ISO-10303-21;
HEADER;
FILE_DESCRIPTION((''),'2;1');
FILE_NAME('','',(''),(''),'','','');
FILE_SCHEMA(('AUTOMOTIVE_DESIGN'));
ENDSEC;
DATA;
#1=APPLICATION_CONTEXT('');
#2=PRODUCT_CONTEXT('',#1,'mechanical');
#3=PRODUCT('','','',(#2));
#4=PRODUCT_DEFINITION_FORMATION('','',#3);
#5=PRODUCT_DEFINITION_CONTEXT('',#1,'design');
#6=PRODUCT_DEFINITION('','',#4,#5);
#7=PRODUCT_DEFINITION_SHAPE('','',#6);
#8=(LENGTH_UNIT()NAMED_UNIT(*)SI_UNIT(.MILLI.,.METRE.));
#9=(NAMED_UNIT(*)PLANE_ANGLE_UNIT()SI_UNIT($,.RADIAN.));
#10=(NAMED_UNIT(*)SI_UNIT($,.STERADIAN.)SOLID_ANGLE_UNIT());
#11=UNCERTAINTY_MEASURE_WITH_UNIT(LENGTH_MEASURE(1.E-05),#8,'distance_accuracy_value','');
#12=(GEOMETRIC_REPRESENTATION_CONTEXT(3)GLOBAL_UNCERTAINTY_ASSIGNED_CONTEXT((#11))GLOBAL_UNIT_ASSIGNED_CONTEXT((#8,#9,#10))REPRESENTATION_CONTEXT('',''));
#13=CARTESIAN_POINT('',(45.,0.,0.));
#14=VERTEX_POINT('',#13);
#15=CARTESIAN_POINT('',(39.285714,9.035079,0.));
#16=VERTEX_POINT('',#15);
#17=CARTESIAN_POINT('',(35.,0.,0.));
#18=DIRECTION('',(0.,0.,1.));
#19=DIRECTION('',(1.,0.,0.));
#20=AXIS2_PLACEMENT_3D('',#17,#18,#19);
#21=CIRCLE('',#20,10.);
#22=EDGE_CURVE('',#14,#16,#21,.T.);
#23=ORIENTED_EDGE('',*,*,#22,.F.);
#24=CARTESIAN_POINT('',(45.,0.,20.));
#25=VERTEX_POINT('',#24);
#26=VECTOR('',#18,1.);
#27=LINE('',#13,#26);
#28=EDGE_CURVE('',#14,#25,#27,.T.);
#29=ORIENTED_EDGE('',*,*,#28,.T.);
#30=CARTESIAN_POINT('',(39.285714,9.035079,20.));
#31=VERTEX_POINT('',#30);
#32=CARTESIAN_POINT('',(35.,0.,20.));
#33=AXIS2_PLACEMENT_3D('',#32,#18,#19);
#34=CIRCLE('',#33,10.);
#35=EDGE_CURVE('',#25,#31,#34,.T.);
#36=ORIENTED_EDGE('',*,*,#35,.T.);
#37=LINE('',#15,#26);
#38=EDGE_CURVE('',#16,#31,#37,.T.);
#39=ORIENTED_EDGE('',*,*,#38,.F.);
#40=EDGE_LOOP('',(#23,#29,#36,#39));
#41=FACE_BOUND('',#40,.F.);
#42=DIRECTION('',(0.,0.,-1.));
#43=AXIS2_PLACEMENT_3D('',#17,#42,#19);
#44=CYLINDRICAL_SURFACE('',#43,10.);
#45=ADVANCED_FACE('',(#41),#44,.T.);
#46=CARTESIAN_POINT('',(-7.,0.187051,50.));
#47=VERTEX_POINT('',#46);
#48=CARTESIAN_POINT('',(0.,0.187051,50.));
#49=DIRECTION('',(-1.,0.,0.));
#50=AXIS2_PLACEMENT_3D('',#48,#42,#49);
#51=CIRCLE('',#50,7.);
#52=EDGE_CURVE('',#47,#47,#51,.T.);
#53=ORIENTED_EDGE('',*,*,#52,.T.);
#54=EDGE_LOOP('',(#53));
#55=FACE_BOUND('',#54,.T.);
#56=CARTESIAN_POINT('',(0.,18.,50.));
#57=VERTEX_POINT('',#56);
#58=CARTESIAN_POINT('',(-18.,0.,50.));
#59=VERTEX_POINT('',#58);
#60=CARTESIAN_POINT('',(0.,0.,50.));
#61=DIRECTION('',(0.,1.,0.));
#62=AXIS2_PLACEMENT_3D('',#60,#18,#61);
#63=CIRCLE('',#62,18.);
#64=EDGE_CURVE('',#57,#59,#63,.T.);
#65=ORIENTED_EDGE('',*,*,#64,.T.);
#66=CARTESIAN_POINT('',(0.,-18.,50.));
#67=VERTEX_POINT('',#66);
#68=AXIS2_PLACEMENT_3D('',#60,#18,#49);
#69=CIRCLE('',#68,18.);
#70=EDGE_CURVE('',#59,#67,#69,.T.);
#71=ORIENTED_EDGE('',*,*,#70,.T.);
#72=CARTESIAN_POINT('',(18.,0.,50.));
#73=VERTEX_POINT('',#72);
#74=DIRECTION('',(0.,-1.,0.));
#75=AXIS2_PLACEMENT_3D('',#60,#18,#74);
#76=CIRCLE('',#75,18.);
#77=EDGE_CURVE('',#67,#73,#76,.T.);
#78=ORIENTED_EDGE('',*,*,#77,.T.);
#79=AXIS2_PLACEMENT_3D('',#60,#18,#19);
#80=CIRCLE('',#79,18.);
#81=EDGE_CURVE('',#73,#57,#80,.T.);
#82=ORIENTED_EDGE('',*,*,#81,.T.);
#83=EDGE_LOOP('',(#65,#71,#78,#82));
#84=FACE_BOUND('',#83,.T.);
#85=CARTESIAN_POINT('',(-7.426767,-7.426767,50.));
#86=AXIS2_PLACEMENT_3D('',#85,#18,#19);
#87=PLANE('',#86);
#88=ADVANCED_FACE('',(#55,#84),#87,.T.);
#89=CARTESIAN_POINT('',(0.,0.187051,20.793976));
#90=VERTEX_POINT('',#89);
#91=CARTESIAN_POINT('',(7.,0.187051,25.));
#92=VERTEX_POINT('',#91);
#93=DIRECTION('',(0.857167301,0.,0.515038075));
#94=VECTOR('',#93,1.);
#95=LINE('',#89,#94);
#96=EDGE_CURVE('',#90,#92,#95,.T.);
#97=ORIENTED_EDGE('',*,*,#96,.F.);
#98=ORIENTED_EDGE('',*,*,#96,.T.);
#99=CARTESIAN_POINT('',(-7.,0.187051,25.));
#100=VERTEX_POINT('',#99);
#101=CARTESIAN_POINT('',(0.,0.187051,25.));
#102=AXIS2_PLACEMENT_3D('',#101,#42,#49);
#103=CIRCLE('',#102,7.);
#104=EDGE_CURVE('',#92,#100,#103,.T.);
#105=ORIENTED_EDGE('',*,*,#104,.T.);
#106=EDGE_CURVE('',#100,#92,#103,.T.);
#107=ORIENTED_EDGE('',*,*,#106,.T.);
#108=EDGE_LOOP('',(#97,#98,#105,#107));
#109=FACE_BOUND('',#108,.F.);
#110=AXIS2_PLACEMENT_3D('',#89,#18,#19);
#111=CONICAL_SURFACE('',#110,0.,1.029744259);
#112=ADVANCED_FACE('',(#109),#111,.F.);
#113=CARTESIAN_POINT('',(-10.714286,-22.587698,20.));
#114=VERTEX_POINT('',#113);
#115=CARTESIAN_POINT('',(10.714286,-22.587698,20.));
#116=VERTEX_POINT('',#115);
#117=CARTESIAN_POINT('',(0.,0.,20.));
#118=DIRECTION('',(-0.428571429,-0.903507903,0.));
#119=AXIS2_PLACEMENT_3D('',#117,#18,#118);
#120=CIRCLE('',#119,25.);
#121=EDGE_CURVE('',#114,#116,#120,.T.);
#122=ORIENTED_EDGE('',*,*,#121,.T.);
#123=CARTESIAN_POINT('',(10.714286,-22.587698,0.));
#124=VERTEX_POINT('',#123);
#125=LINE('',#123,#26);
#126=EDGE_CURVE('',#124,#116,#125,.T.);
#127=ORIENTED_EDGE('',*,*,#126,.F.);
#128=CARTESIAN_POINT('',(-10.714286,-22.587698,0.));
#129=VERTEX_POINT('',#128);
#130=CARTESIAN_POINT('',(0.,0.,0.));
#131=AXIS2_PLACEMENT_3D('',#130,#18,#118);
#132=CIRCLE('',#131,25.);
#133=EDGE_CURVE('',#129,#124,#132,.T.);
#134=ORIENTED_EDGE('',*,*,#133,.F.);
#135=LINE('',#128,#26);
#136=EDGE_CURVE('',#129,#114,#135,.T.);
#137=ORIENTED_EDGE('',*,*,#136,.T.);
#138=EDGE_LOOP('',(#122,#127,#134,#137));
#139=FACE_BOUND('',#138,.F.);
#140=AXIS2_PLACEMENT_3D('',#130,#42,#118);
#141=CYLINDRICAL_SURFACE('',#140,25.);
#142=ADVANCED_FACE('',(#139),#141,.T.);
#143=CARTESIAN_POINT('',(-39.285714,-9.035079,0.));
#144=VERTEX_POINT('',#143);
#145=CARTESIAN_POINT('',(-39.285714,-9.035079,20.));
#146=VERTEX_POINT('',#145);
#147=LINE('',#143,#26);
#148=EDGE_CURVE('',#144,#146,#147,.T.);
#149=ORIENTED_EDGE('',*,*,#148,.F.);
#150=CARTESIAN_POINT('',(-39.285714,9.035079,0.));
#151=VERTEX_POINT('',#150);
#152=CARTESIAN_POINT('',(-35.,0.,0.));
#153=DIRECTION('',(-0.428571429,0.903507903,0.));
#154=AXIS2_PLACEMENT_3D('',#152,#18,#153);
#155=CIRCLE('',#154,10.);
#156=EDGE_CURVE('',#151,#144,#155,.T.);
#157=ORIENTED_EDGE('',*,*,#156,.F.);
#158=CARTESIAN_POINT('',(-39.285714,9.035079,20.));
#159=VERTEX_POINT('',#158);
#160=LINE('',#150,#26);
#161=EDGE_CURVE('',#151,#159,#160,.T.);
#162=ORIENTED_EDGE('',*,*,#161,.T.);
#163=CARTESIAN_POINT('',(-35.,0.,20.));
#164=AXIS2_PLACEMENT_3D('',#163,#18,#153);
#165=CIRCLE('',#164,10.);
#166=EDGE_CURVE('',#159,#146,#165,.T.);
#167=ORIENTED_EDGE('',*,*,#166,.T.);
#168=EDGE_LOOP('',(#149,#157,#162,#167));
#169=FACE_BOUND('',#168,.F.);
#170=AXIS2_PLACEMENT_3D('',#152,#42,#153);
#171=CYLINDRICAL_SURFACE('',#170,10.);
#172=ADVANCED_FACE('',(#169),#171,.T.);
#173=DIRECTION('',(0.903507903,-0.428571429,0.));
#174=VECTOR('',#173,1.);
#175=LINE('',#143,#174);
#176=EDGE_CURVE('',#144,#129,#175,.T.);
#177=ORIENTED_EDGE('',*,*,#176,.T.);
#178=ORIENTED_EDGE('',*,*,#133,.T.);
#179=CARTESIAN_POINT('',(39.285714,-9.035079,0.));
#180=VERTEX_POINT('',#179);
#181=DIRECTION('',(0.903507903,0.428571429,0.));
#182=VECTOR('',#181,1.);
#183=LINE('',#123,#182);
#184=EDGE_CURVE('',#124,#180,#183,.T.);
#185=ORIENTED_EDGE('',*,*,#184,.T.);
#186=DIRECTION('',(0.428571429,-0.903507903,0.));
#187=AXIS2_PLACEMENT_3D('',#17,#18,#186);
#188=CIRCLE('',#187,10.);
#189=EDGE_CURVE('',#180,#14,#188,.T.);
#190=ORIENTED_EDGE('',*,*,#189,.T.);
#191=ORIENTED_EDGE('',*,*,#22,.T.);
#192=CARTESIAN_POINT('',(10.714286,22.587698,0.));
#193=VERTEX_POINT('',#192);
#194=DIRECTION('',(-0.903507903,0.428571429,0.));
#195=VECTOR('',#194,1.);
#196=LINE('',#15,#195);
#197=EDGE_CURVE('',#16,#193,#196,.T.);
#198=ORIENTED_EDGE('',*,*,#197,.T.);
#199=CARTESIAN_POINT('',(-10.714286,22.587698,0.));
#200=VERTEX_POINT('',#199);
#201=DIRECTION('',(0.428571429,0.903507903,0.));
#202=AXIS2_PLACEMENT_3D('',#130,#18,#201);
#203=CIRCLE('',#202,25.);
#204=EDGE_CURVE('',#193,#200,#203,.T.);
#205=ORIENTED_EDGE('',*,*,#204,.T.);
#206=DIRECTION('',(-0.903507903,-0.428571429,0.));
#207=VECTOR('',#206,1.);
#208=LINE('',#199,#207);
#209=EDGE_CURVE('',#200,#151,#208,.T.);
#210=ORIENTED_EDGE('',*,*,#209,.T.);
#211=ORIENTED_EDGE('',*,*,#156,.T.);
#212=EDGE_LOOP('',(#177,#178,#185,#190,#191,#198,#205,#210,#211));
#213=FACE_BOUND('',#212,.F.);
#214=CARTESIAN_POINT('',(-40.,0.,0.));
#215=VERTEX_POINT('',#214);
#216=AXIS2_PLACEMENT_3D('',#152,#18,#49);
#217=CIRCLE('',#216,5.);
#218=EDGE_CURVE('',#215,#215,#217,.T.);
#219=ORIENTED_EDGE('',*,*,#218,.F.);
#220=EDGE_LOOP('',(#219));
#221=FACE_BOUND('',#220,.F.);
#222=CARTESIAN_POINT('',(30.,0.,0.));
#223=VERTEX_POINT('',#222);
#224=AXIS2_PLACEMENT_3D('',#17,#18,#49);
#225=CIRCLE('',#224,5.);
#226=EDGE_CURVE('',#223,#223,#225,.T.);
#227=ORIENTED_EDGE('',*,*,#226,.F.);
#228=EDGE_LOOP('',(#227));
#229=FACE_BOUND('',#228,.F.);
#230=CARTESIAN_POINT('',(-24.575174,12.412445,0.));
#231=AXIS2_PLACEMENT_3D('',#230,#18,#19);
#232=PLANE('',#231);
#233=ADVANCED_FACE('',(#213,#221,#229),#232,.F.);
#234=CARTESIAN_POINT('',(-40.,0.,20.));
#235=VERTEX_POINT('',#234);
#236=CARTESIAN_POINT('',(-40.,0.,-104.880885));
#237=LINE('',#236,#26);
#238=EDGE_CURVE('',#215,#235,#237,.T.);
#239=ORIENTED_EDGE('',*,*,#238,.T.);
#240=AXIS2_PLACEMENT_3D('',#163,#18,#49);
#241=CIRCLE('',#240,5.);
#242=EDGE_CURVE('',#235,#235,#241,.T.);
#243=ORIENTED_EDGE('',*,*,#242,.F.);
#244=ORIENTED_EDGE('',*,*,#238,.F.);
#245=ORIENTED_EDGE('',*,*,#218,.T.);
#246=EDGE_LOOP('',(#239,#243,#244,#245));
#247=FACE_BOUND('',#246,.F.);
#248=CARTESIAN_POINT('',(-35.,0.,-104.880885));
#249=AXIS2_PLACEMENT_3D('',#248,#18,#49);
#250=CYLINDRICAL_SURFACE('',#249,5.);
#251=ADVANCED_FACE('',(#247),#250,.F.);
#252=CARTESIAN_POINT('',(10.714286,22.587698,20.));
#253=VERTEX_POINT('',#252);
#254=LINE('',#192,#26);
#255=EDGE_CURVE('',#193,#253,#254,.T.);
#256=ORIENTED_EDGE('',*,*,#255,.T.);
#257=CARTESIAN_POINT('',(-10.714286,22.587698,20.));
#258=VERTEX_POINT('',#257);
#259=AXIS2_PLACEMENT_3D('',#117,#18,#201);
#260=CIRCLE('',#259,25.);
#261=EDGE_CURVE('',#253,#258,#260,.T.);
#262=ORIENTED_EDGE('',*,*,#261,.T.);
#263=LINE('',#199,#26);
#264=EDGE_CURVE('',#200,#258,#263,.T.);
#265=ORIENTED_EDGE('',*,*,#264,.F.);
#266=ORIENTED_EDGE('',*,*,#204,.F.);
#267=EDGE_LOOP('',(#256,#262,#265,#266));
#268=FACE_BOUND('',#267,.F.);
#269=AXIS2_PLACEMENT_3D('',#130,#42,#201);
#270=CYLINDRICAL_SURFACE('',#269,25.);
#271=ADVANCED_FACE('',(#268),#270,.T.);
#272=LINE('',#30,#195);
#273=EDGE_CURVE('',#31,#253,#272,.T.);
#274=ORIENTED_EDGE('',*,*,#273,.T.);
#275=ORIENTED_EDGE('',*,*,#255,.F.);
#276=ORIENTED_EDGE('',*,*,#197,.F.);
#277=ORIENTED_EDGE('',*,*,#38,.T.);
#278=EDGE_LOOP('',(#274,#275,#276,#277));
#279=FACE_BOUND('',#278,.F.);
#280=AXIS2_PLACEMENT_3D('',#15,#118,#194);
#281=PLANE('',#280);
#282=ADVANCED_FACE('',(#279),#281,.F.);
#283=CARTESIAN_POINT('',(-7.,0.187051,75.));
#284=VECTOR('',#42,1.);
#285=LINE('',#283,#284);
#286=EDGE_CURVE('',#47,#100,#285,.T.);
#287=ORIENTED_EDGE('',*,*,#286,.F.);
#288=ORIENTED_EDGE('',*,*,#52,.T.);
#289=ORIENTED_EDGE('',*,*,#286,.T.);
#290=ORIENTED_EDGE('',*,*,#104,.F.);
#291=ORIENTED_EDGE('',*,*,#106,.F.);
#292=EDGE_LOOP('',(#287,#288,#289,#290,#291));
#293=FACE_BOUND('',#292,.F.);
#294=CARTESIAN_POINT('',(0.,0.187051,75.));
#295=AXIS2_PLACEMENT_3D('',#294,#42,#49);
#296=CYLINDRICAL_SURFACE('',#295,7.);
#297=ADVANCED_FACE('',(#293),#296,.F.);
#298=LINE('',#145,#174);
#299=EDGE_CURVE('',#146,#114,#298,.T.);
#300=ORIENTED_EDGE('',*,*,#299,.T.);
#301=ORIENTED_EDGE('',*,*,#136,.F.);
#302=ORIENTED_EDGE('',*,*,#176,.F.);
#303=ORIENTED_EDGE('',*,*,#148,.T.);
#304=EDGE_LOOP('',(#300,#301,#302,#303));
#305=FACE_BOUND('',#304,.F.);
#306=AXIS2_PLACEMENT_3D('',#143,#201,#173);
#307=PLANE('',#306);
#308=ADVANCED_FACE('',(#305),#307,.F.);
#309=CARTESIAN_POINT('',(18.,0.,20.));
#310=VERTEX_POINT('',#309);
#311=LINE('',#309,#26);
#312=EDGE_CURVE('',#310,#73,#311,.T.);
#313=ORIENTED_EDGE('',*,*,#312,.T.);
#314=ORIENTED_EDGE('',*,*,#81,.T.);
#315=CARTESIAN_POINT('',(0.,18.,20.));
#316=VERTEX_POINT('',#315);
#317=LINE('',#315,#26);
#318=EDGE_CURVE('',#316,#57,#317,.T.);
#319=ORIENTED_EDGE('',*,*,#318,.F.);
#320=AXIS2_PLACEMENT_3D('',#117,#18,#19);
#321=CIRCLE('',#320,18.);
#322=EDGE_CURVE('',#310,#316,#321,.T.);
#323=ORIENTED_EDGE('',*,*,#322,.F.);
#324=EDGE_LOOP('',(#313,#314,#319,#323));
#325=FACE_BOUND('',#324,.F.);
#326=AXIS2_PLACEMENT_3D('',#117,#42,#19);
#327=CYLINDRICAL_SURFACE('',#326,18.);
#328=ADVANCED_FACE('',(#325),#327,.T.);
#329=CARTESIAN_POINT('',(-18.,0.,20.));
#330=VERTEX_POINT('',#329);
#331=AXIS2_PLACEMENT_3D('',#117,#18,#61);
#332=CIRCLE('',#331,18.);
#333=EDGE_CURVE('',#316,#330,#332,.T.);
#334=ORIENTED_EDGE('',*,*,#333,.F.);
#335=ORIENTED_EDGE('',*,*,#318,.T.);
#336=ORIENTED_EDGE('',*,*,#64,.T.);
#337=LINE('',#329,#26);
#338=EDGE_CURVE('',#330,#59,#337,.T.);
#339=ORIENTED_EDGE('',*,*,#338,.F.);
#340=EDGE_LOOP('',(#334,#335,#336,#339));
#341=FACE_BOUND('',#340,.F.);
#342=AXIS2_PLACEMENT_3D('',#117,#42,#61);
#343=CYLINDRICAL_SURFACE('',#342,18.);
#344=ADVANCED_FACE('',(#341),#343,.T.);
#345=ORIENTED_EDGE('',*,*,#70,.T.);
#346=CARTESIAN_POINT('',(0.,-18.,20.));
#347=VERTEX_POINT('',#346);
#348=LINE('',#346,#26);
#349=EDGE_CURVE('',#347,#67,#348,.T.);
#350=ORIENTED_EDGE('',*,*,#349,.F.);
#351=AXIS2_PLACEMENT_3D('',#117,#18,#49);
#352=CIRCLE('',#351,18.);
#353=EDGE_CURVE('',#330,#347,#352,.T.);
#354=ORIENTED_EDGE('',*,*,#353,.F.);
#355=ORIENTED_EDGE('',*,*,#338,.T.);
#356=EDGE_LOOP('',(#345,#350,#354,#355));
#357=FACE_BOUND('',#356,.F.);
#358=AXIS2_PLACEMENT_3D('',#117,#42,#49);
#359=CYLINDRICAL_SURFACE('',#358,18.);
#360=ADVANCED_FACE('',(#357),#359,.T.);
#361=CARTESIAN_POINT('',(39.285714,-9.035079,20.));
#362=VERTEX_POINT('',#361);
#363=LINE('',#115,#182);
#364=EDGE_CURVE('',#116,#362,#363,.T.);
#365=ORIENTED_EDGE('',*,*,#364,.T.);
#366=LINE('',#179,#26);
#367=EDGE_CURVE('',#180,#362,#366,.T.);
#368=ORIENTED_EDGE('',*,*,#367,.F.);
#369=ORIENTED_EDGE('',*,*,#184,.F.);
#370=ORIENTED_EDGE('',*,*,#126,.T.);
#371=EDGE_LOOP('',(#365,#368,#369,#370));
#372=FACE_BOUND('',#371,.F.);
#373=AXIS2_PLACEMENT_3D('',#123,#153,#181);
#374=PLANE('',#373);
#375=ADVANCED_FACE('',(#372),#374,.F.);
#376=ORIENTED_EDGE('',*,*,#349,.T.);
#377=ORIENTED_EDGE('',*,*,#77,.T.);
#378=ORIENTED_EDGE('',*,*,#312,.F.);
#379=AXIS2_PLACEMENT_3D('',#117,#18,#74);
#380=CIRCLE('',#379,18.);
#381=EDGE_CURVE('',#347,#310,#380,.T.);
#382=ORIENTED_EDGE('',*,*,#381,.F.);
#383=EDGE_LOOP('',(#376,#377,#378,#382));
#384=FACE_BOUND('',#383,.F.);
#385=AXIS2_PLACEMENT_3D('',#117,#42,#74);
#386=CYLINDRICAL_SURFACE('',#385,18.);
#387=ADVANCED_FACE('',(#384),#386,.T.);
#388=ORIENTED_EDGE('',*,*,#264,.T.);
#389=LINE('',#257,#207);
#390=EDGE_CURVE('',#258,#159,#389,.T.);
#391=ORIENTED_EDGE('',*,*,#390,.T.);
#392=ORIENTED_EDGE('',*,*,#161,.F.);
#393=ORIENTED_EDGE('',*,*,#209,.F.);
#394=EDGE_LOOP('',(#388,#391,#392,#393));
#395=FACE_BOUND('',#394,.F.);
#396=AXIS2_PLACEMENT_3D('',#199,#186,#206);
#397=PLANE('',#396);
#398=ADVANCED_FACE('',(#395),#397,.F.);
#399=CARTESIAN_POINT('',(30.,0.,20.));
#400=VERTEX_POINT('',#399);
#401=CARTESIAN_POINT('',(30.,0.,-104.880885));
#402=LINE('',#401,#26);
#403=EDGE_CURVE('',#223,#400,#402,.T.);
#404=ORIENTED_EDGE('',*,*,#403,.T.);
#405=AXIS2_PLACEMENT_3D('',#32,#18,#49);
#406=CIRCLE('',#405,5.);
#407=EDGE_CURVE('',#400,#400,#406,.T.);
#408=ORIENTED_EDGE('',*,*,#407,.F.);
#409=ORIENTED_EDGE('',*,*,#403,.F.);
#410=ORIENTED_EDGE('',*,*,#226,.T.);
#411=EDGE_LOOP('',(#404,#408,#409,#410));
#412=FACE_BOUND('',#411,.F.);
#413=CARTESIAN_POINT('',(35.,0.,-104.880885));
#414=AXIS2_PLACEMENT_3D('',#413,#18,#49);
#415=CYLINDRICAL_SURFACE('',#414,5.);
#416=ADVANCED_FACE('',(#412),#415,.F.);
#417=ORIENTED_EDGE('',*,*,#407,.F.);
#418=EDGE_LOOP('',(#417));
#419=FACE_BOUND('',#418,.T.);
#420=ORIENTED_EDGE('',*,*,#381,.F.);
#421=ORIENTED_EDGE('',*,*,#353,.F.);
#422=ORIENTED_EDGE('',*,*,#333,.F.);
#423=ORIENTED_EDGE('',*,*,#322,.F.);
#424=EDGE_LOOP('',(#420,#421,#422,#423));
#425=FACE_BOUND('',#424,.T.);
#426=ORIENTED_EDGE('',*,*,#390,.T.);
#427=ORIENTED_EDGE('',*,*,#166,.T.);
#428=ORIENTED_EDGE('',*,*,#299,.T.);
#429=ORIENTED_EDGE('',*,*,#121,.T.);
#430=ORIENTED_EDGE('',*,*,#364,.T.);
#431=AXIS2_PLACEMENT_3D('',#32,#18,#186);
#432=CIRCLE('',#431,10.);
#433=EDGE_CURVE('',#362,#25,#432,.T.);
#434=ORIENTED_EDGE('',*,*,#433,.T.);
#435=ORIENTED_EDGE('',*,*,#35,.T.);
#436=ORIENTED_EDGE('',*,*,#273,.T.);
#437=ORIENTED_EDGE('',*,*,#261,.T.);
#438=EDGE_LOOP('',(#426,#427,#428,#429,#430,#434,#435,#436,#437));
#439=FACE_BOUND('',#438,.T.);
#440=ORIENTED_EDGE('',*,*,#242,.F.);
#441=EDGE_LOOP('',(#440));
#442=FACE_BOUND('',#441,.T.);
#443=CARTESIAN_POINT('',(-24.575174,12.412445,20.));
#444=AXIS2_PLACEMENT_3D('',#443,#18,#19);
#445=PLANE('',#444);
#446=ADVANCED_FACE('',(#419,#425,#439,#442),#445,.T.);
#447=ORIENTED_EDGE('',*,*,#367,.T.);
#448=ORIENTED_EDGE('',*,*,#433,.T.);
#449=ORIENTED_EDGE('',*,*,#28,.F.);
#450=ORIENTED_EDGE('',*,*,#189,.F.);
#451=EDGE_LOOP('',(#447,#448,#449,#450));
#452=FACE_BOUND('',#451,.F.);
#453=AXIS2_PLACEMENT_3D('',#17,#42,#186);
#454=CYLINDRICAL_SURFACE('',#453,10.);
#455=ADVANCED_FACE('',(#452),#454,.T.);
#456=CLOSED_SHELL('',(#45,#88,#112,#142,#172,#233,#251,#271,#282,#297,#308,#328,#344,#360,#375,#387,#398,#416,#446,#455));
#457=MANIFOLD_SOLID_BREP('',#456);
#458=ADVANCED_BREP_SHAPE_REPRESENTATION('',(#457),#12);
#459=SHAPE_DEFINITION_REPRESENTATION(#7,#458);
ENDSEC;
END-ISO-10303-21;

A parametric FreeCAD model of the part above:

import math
import FreeCAD as App
import Part
import Sketcher

V = App.Vector
Q = App.Units.Quantity

doc = App.newDocument("Part")
body = doc.addObject("PartDesign::Body", "Body")

# Sketch on XY plane
sketch1 = body.newObject("Sketcher::SketchObject", "Sketch")
sketch1.AttachmentSupport = (doc.getObject("XY_Plane"), [""])
sketch1.MapMode = "FlatFace"
sketch1.addGeometry([
    Part.ArcOfCircle(Part.Circle(V(35, 0, 0), V(0, 0, 1), 10), math.radians(0), math.radians(65)),  # 0
    Part.LineSegment(V(39, 9, 0), V(11, 23, 0)),  # 1
    Part.ArcOfCircle(Part.Circle(V(0, 0, 0), V(0, 0, 1), 25), math.radians(65), math.radians(115)),  # 2
    Part.LineSegment(V(-11, 23, 0), V(-39, 9, 0)),  # 3
    Part.ArcOfCircle(Part.Circle(V(-35, 0, 0), V(0, 0, 1), 10), math.radians(115), math.radians(245)),  # 4
    Part.LineSegment(V(-39, -9, 0), V(-11, -23, 0)),  # 5
    Part.ArcOfCircle(Part.Circle(V(0, 0, 0), V(0, 0, 1), 25), math.radians(-115), math.radians(-65)),  # 6
    Part.LineSegment(V(11, -23, 0), V(39, -9, 0)),  # 7
    Part.ArcOfCircle(Part.Circle(V(35, 0, 0), V(0, 0, 1), 10), math.radians(-65), math.radians(0)),  # 8
], False)
sketch1.addConstraint([
    Sketcher.Constraint("Tangent", 0, 2, 1, 1),
    Sketcher.Constraint("Tangent", 1, 2, 2, 1),
    Sketcher.Constraint("Tangent", 2, 2, 3, 1),
    Sketcher.Constraint("Tangent", 3, 2, 4, 1),
    Sketcher.Constraint("Tangent", 4, 2, 5, 1),
    Sketcher.Constraint("Tangent", 5, 2, 6, 1),
    Sketcher.Constraint("Tangent", 6, 2, 7, 1),
    Sketcher.Constraint("Tangent", 7, 2, 8, 1),
    Sketcher.Constraint("Tangent", 8, 2, 0, 1),
    Sketcher.Constraint("Coincident", 2, 3, -1, 1),
    Sketcher.Constraint("Coincident", 6, 3, -1, 1),
    Sketcher.Constraint("Equal", 0, 4),
    Sketcher.Constraint("Equal", 2, 6),
    Sketcher.Constraint("Equal", 4, 8),
    Sketcher.Constraint("Symmetric", 0, 3, 4, 3, -1, 1),
    Sketcher.Constraint("PointOnObject", 0, 3, -1),
    Sketcher.Constraint("PointOnObject", 8, 2, -1),
    Sketcher.Constraint("Radius", 0, Q("10 mm")),
    Sketcher.Constraint("Radius", 2, Q("25 mm")),
    Sketcher.Constraint("DistanceX", -1, 1, 0, 3, Q("35 mm")),
])
pad1 = body.newObject("PartDesign::Pad", "Pad")
pad1.Profile = sketch1
pad1.Length = 20

# Sketch on XY plane
sketch2 = body.newObject("Sketcher::SketchObject", "Sketch001")
sketch2.AttachmentSupport = (doc.getObject("XY_Plane"), [""])
sketch2.MapMode = "FlatFace"
sketch2.addGeometry([
    Part.Circle(V(-35, 0, 0), V(0, 0, 1), 5),
    Part.Circle(V(35, 0, 0), V(0, 0, 1), 5),
], False)
sketch2.addConstraint([
    Sketcher.Constraint("Equal", 0, 1),
    Sketcher.Constraint("Symmetric", 0, 3, 1, 3, -1, 1),
    Sketcher.Constraint("PointOnObject", 0, 3, -1),
    Sketcher.Constraint("Diameter", 0, Q("10 mm")),
    Sketcher.Constraint("DistanceX", 0, 3, -1, 1, Q("35 mm")),
])
doc.recompute()
hole = body.newObject("PartDesign::Hole", "Hole")
hole.Profile = sketch2
hole.ThreadType = "None"
hole.Diameter = 10
hole.DepthType = "ThroughAll"
hole.Reversed = True

# Sketch on XY plane
sketch3 = body.newObject("Sketcher::SketchObject", "Sketch002")
sketch3.AttachmentSupport = (doc.getObject("XY_Plane"), [""])
sketch3.MapMode = "FlatFace"
sketch3.AttachmentOffset = App.Placement(V(0, 0, 20), App.Rotation())
sketch3.addGeometry([
    Part.ArcOfCircle(Part.Circle(V(0, 0, 0), V(0, 0, 1), 18), math.radians(0), math.radians(90)),
    Part.ArcOfCircle(Part.Circle(V(0, 0, 0), V(0, 0, 1), 18), math.radians(90), math.radians(180)),
    Part.ArcOfCircle(Part.Circle(V(0, 0, 0), V(0, 0, 1), 18), math.radians(180), math.radians(270)),
    Part.ArcOfCircle(Part.Circle(V(0, 0, 0), V(0, 0, 1), 18), math.radians(-90), math.radians(0)),
], False)
sketch3.addConstraint([
    Sketcher.Constraint("Tangent", 0, 2, 1, 1),
    Sketcher.Constraint("Tangent", 1, 2, 2, 1),
    Sketcher.Constraint("Tangent", 2, 2, 3, 1),
    Sketcher.Constraint("Tangent", 3, 2, 0, 1),
    Sketcher.Constraint("Coincident", 0, 3, -1, 1),
    Sketcher.Constraint("Equal", 0, 1),
    Sketcher.Constraint("PointOnObject", 0, 2, -2),
    Sketcher.Constraint("PointOnObject", 1, 2, -1),
    Sketcher.Constraint("PointOnObject", 2, 2, -2),
    Sketcher.Constraint("PointOnObject", 3, 2, -1),
    Sketcher.Constraint("Radius", 0, Q("18 mm")),
])
pad2 = body.newObject("PartDesign::Pad", "Pad001")
pad2.Profile = sketch3
pad2.Length = 30

# Sketch on XY plane
sketch4 = body.newObject("Sketcher::SketchObject", "Sketch003")
sketch4.AttachmentSupport = (doc.getObject("XY_Plane"), [""])
sketch4.MapMode = "FlatFace"
sketch4.AttachmentOffset = App.Placement(V(0, 0, 50), App.Rotation())
sketch4.addGeometry(Part.Circle(V(0, 0, 0), V(0, 0, 1), 7), False)
sketch4.addConstraint([
    Sketcher.Constraint("PointOnObject", 0, 3, -2),
    Sketcher.Constraint("Diameter", 0, Q("14 mm")),
    Sketcher.Constraint("DistanceY", -1, 1, 0, 3, Q("0.187051 mm")),
])
doc.recompute()
hole2 = body.newObject("PartDesign::Hole", "Hole001")
hole2.Profile = sketch4
hole2.ThreadType = "None"
hole2.Diameter = 14
hole2.DepthType = "Dimension"
hole2.Depth = 25
hole2.DrillPoint = "Angled"
hole2.DrillPointAngle = 118

doc.recompute()
